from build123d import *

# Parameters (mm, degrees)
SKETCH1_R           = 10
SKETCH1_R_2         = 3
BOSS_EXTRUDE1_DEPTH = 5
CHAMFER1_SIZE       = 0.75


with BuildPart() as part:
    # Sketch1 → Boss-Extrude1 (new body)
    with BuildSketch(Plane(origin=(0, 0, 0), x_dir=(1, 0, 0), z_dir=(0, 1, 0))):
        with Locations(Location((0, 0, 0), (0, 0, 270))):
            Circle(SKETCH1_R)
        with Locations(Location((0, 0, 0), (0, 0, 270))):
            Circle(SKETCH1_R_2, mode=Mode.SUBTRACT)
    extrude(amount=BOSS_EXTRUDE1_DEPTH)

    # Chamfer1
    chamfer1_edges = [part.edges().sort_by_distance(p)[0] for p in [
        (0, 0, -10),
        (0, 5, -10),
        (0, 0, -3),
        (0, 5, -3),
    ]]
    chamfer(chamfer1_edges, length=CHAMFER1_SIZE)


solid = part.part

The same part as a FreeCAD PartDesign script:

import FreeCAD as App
import Part
import Sketcher

V = App.Vector


def edges_at(feature, points):
    """Names of the edges that pass closest to the given points."""
    edges = feature.Shape.Edges
    near = lambda p: min(range(len(edges)), key=lambda i: edges[i].distToShape(Part.Vertex(*p))[0])
    return sorted({f"Edge{near(p) + 1}" for p in points})

doc = App.newDocument("Part")
params = doc.addObject("Spreadsheet::Sheet", "Params")
for row, (alias, value) in enumerate([
    ("sketch1_diameter", "20 mm"),
    ("sketch1_diameter2", "6 mm"),
    ("pad1_length", "5 mm"),
    ("chamfer_size", "0.75 mm"),
], start=1):
    params.set(f"A{row}", alias)
    params.set(f"B{row}", "=" + value)
    params.setAlias(f"B{row}", alias)

body = doc.addObject("PartDesign::Body", "Body")

# Sketch on XZ plane
sketch1 = body.newObject("Sketcher::SketchObject", "Sketch")
sketch1.AttachmentSupport = (doc.getObject("XZ_Plane"), [""])
sketch1.MapMode = "FlatFace"
sketch1.addGeometry([
    Part.Circle(V(0, 0, 0), V(0, 0, 1), 10),
    Part.Circle(V(0, 0, 0), V(0, 0, 1), 3),
], False)
sketch1.addConstraint([
    Sketcher.Constraint("Coincident", 0, 3, -1, 1),
    Sketcher.Constraint("Coincident", 1, 3, -1, 1),
    Sketcher.Constraint("Diameter", 0, 20.0),
    Sketcher.Constraint("Diameter", 1, 6.0),
])
sketch1.setExpression("Constraints[2]", "Params.sketch1_diameter")
sketch1.setExpression("Constraints[3]", "Params.sketch1_diameter2")
pad1 = body.newObject("PartDesign::Pad", "Pad")
pad1.Profile = sketch1
pad1.setExpression("Length", "Params.pad1_length")
pad1.Reversed = True
doc.recompute()

chamfer = body.newObject("PartDesign::Chamfer", "Chamfer")
chamfer.Base = (pad1, edges_at(pad1, [
    (0, 0, -10),
    (0, 5, -10),
    (0, 0, -3),
    (0, 5, -3),
]))
chamfer.setExpression("Size", "Params.chamfer_size")

doc.recompute()
